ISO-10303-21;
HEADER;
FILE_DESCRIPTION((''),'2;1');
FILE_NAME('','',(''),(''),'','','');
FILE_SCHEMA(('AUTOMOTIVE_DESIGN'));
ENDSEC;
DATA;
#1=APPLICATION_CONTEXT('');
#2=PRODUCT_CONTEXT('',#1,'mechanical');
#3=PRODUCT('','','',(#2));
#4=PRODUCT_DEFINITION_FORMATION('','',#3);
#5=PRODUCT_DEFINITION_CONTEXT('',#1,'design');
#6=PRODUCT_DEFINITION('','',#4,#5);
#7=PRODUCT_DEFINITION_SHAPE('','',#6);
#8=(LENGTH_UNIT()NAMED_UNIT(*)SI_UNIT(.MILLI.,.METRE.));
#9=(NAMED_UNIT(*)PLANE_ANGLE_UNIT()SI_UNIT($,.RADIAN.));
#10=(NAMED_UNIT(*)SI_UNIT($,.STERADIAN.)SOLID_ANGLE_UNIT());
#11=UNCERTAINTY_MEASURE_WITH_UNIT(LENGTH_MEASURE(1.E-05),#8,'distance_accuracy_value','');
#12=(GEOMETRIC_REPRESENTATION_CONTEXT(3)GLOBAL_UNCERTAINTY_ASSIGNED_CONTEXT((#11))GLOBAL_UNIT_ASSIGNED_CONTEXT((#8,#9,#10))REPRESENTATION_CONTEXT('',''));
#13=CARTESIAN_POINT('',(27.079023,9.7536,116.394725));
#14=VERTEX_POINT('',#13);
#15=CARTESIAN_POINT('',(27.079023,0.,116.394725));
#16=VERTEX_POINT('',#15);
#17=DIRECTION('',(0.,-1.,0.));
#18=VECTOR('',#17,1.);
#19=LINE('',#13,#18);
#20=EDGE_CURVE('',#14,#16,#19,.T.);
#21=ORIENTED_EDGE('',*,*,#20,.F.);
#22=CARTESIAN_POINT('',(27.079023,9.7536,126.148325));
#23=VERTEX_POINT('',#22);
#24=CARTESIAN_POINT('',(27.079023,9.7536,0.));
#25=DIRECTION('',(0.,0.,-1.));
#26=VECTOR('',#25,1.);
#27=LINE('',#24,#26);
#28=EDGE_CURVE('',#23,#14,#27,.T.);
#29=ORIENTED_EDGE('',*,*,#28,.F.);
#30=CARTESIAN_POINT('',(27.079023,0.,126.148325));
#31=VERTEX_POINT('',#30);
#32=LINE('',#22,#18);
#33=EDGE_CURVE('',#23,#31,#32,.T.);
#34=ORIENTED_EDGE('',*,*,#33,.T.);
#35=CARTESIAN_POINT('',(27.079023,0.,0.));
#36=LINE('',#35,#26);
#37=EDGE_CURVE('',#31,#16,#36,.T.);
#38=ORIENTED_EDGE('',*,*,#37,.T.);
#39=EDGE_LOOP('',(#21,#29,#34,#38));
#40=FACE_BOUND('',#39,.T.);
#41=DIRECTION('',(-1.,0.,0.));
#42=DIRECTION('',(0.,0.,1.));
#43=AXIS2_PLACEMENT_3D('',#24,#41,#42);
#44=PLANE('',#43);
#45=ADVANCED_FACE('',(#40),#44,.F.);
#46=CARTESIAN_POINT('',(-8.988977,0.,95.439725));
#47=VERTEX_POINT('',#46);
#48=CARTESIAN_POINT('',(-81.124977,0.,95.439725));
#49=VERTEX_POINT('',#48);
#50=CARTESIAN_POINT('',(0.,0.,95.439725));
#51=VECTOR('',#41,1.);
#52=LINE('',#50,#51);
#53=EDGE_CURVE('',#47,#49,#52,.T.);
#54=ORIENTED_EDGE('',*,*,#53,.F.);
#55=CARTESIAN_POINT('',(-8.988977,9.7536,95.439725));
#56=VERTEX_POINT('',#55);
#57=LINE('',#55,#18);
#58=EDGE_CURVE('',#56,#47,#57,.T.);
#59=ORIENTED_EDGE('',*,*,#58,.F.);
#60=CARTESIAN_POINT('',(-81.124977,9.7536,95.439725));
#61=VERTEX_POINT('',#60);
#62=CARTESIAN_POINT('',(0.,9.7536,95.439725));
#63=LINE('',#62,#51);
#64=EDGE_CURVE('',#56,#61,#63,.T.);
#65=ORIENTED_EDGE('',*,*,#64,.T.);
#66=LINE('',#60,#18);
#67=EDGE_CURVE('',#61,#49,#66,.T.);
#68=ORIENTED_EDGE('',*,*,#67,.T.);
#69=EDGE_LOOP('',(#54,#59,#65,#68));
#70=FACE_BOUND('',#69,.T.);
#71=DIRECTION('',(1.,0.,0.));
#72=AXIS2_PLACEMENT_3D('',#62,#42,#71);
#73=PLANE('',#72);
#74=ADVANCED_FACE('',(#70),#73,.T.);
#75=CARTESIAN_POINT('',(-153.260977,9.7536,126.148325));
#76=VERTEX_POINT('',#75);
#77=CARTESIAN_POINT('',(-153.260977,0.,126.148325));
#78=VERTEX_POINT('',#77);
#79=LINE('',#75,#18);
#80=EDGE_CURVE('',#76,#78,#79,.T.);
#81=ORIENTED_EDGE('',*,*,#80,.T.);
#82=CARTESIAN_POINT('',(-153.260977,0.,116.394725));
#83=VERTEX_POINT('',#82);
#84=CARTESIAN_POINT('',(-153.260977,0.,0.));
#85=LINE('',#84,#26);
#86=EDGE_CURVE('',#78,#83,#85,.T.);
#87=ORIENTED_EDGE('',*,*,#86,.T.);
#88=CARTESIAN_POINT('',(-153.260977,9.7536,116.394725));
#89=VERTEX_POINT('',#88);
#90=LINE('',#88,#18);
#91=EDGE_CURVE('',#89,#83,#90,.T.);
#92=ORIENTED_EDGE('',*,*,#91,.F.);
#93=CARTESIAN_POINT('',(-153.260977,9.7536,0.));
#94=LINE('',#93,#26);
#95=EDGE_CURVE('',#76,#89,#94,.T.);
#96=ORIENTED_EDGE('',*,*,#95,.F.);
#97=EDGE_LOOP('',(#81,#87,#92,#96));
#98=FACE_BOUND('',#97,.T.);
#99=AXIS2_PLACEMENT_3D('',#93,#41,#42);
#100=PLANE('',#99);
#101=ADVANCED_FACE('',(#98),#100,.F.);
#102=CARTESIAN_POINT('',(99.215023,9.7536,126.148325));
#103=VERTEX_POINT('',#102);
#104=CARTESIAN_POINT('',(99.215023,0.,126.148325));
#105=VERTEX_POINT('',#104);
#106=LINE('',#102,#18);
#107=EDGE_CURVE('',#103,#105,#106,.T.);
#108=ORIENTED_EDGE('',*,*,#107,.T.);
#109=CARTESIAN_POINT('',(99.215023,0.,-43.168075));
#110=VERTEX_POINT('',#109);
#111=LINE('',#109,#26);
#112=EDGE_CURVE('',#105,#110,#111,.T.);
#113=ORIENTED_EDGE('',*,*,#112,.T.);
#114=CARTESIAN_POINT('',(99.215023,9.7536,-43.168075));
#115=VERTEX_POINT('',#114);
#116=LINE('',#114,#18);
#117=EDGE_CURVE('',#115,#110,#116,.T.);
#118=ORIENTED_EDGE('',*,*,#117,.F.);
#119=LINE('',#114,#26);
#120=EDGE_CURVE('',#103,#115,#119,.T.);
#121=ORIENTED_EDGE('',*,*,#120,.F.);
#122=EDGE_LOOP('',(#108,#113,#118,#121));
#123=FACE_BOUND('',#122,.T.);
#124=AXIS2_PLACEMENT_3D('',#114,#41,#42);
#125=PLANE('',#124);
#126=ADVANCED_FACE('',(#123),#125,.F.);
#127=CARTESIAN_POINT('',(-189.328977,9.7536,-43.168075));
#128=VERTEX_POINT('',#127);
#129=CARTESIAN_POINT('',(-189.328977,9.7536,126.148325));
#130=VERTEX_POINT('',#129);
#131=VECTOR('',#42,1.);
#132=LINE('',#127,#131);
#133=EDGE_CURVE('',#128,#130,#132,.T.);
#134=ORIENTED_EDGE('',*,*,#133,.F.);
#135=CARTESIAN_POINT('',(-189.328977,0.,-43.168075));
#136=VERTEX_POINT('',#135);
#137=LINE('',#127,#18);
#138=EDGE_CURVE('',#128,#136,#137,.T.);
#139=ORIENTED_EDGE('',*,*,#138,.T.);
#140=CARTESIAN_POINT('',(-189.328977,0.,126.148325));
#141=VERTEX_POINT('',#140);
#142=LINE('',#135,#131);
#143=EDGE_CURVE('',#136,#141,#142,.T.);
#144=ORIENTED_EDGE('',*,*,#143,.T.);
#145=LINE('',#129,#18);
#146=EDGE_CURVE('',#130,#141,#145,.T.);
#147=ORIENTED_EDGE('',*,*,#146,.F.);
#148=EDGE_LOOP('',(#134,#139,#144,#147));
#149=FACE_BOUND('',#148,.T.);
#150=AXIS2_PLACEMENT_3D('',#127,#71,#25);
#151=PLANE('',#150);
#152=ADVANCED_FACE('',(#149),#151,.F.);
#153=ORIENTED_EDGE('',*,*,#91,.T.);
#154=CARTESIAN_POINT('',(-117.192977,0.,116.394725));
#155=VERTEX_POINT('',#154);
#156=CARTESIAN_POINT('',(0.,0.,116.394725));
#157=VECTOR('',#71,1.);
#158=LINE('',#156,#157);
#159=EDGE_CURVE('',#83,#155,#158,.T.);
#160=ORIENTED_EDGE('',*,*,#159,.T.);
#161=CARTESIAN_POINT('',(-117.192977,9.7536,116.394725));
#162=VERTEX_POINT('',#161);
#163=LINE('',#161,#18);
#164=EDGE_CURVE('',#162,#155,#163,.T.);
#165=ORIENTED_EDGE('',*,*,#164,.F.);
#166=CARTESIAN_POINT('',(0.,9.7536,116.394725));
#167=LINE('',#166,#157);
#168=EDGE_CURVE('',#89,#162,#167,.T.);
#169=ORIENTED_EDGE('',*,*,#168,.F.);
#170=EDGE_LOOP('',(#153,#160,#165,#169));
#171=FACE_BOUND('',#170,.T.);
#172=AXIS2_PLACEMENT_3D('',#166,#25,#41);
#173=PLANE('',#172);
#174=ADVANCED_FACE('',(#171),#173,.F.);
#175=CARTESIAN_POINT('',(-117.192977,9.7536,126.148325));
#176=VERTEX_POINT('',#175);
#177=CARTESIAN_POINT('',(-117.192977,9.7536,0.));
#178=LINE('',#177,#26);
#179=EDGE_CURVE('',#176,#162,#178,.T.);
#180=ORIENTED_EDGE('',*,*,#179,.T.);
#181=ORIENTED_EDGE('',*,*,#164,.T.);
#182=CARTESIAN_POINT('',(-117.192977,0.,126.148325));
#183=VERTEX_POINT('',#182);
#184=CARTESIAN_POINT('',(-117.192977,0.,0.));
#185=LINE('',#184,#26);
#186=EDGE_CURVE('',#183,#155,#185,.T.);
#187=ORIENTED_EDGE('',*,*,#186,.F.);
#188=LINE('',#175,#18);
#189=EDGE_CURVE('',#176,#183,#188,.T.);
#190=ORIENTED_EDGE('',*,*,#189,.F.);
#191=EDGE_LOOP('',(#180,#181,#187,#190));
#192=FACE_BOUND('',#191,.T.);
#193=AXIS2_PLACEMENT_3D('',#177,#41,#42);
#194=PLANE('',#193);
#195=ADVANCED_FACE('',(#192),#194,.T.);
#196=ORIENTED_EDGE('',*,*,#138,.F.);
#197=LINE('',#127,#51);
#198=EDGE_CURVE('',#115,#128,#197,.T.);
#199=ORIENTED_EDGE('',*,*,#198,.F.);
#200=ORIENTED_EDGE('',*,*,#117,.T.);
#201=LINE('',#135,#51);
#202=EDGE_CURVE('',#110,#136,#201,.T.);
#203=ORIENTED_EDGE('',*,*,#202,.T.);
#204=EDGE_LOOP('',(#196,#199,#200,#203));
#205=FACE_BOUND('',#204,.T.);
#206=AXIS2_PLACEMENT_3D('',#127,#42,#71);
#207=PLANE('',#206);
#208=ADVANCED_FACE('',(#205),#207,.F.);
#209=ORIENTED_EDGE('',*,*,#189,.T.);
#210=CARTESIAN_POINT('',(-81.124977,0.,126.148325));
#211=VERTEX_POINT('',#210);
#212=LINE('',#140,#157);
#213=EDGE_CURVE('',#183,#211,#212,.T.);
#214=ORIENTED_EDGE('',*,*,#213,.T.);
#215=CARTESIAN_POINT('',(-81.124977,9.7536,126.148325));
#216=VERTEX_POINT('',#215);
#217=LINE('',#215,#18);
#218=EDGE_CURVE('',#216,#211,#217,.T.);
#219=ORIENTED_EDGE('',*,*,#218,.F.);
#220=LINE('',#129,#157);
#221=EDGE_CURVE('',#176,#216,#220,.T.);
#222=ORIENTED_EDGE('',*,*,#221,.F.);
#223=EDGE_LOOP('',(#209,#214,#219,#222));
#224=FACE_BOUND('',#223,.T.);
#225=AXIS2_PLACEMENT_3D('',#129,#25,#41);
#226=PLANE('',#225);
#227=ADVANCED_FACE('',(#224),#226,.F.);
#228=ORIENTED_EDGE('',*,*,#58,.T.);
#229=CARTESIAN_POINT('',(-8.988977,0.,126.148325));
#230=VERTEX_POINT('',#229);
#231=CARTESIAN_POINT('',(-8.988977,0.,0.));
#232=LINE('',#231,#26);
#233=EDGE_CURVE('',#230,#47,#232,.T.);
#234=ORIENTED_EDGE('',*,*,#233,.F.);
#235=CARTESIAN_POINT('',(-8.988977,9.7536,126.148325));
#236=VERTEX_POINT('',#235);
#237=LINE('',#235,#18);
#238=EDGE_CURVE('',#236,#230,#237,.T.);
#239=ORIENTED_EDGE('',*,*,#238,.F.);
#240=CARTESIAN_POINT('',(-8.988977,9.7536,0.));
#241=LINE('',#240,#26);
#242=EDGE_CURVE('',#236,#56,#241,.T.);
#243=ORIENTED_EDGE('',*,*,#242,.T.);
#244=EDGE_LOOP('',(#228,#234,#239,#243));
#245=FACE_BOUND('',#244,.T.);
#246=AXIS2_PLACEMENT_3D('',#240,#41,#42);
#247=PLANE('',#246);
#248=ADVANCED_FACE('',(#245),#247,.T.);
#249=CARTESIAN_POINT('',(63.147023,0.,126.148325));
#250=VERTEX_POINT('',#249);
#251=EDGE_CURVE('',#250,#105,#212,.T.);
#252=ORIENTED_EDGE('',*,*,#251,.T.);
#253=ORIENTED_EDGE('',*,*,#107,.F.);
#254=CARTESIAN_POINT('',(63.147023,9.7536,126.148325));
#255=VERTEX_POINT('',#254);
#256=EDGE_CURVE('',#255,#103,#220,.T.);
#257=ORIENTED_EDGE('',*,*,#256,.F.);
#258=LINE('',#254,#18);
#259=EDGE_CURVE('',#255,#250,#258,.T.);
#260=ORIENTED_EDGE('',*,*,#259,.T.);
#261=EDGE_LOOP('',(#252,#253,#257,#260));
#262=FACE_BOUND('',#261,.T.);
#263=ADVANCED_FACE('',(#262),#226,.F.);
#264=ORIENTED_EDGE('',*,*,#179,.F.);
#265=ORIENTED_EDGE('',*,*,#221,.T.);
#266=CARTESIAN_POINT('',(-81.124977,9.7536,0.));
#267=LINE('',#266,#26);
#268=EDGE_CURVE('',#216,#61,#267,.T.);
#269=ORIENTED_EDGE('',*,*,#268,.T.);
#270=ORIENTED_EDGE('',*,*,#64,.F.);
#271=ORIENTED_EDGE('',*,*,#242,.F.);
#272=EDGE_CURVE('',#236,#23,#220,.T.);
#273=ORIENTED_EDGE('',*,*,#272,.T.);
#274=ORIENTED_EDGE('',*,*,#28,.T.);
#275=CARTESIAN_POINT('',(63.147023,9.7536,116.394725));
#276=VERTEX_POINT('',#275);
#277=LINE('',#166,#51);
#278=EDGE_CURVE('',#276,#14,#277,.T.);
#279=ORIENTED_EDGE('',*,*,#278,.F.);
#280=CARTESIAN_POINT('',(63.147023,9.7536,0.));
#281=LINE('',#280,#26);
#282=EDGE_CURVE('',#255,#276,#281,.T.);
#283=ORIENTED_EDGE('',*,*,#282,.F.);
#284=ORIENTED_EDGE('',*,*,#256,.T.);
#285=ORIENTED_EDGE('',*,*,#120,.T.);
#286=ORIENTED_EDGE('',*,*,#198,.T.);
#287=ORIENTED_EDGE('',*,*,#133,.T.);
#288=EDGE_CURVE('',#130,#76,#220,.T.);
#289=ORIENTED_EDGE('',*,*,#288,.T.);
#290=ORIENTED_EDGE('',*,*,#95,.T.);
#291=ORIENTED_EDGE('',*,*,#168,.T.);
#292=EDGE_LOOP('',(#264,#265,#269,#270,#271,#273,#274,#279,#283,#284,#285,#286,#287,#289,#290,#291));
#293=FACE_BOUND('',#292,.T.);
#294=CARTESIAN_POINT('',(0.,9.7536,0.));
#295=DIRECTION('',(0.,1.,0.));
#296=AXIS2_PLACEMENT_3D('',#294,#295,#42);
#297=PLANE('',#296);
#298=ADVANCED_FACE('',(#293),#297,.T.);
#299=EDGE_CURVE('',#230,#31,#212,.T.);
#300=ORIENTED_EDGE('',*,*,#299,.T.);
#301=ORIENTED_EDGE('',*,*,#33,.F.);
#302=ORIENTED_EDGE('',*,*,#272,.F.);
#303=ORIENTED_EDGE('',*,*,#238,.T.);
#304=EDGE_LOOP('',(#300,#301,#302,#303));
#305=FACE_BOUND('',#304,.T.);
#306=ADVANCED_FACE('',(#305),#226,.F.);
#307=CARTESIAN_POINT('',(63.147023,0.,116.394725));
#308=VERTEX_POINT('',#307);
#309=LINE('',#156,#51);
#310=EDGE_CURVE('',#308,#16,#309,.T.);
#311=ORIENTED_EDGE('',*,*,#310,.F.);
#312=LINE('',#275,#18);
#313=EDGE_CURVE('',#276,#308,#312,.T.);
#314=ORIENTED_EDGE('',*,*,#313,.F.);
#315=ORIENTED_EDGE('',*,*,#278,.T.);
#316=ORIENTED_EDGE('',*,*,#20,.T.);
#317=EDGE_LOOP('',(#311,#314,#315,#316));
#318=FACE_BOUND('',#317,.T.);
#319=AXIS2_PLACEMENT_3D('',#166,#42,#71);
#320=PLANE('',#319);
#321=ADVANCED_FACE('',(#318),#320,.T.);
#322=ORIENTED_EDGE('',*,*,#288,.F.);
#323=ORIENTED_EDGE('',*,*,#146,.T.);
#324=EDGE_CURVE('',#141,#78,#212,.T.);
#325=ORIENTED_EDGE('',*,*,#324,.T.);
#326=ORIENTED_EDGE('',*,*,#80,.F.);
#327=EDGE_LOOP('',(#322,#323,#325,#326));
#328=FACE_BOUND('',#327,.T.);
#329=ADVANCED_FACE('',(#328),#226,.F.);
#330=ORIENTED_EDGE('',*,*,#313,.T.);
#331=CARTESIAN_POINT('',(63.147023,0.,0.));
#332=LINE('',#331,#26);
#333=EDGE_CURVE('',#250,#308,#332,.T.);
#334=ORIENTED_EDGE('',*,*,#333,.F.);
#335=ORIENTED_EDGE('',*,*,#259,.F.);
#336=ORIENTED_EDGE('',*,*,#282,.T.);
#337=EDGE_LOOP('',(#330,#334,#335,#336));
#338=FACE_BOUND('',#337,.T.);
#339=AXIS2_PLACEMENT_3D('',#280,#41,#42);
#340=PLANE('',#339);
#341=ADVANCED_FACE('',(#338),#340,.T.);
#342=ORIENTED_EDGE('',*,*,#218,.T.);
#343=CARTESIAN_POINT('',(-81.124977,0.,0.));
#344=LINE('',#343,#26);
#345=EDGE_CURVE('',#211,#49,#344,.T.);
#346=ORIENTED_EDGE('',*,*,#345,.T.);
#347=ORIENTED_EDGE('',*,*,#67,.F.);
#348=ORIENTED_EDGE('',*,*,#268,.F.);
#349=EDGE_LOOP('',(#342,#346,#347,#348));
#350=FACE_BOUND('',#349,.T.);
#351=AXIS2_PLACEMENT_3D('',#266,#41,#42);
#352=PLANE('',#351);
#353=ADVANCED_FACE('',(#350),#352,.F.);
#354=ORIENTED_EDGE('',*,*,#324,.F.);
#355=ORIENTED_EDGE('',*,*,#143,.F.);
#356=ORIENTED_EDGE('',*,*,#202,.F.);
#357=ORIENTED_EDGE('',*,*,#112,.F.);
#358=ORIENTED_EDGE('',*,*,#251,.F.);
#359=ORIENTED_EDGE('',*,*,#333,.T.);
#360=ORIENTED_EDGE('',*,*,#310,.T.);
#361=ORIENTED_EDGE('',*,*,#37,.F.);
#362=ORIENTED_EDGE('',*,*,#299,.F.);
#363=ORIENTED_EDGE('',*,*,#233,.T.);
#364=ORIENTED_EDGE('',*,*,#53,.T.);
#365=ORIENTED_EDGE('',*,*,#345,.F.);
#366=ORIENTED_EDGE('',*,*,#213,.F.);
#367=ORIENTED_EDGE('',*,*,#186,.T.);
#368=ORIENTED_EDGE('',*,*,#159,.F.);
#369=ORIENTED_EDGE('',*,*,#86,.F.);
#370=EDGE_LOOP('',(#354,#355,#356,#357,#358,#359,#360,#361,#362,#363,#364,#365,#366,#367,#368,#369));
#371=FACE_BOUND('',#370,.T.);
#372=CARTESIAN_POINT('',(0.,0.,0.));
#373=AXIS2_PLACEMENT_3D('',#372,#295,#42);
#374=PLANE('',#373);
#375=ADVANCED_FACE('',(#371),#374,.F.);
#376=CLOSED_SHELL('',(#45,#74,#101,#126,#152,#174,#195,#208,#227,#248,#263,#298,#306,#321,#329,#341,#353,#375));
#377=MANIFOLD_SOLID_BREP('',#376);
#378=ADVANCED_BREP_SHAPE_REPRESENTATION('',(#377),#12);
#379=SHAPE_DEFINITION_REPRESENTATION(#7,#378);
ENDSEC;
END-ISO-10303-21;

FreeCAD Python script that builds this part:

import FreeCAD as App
import Part
import Sketcher
from FreeCAD import Vector
Q = App.Units.Quantity

doc = App.newDocument("Part")
body = doc.addObject("PartDesign::Body", "Body")

# Sketch on XZ plane
sketch1 = body.newObject("Sketcher::SketchObject", "Sketch")
sketch1.AttachmentSupport = (doc.getObject("XZ_Plane"), [""])
sketch1.MapMode = "FlatFace"
sketch1.addGeometry(Part.LineSegment(Vector(-189, -43, 0), Vector(-189, 126, 0)), False)
sketch1.addGeometry(Part.LineSegment(Vector(-189, 126, 0), Vector(99, 126, 0)), False)
sketch1.addGeometry(Part.LineSegment(Vector(99, 126, 0), Vector(99, -43, 0)), False)
sketch1.addGeometry(Part.LineSegment(Vector(99, -43, 0), Vector(-189, -43, 0)), False)
sketch1.addConstraint(Sketcher.Constraint("Coincident", 0, 2, 1, 1))
sketch1.addConstraint(Sketcher.Constraint("Coincident", 1, 2, 2, 1))
sketch1.addConstraint(Sketcher.Constraint("Coincident", 2, 2, 3, 1))
sketch1.addConstraint(Sketcher.Constraint("Coincident", 3, 2, 0, 1))
sketch1.addConstraint(Sketcher.Constraint("Vertical", 0))
sketch1.addConstraint(Sketcher.Constraint("Horizontal", 1))
sketch1.addConstraint(Sketcher.Constraint("Vertical", 2))
sketch1.addConstraint(Sketcher.Constraint("Horizontal", 3))
sketch1.addConstraint(Sketcher.Constraint("DistanceX", 1, 1, 1, 2, Q("11.36 in")))
sketch1.addConstraint(Sketcher.Constraint("DistanceY", 0, 1, 0, 2, Q("6.666 in")))
sketch1.addConstraint(Sketcher.Constraint("DistanceX", 0, 2, -1, 1, Q("189.328977 mm")))
sketch1.addConstraint(Sketcher.Constraint("DistanceY", -1, 1, 0, 2, Q("126.148325 mm")))
pad1 = body.newObject("PartDesign::Pad", "Pad")
pad1.Profile = sketch1
pad1.Length = Q("0.384 in")
pad1.Reversed = True

# Sketch on XZ plane
sketch2 = body.newObject("Sketcher::SketchObject", "Sketch001")
sketch2.AttachmentSupport = (doc.getObject("XZ_Plane"), [""])
sketch2.MapMode = "FlatFace"
sketch2.addGeometry(Part.LineSegment(Vector(-153, 126, 0), Vector(-153, 116, 0)), False)
sketch2.addGeometry(Part.LineSegment(Vector(-153, 116, 0), Vector(-117, 116, 0)), False)
sketch2.addGeometry(Part.LineSegment(Vector(-117, 116, 0), Vector(-117, 126, 0)), False)
sketch2.addGeometry(Part.LineSegment(Vector(-117, 126, 0), Vector(-153, 126, 0)), False)
sketch2.addGeometry(Part.LineSegment(Vector(-81, 126, 0), Vector(-81, 95, 0)), False)
sketch2.addGeometry(Part.LineSegment(Vector(-81, 95, 0), Vector(-9, 95, 0)), False)
sketch2.addGeometry(Part.LineSegment(Vector(-9, 95, 0), Vector(-9, 126, 0)), False)
sketch2.addGeometry(Part.LineSegment(Vector(-9, 126, 0), Vector(-81, 126, 0)), False)
sketch2.addGeometry(Part.LineSegment(Vector(27, 126, 0), Vector(27, 116, 0)), False)
sketch2.addGeometry(Part.LineSegment(Vector(27, 116, 0), Vector(63, 116, 0)), False)
sketch2.addGeometry(Part.LineSegment(Vector(63, 116, 0), Vector(63, 126, 0)), False)
sketch2.addGeometry(Part.LineSegment(Vector(63, 126, 0), Vector(27, 126, 0)), False)
sketch2.addConstraint(Sketcher.Constraint("Coincident", 0, 2, 1, 1))
sketch2.addConstraint(Sketcher.Constraint("Coincident", 1, 2, 2, 1))
sketch2.addConstraint(Sketcher.Constraint("Coincident", 2, 2, 3, 1))
sketch2.addConstraint(Sketcher.Constraint("Coincident", 3, 2, 0, 1))
sketch2.addConstraint(Sketcher.Constraint("Coincident", 4, 2, 5, 1))
sketch2.addConstraint(Sketcher.Constraint("Coincident", 5, 2, 6, 1))
sketch2.addConstraint(Sketcher.Constraint("Coincident", 6, 2, 7, 1))
sketch2.addConstraint(Sketcher.Constraint("Coincident", 7, 2, 4, 1))
sketch2.addConstraint(Sketcher.Constraint("Coincident", 8, 2, 9, 1))
sketch2.addConstraint(Sketcher.Constraint("Coincident", 9, 2, 10, 1))
sketch2.addConstraint(Sketcher.Constraint("Coincident", 10, 2, 11, 1))
sketch2.addConstraint(Sketcher.Constraint("Coincident", 11, 2, 8, 1))
sketch2.addConstraint(Sketcher.Constraint("Vertical", 0))
sketch2.addConstraint(Sketcher.Constraint("Horizontal", 1))
sketch2.addConstraint(Sketcher.Constraint("Vertical", 2))
sketch2.addConstraint(Sketcher.Constraint("Horizontal", 3))
sketch2.addConstraint(Sketcher.Constraint("Vertical", 4))
sketch2.addConstraint(Sketcher.Constraint("Horizontal", 5))
sketch2.addConstraint(Sketcher.Constraint("Vertical", 6))
sketch2.addConstraint(Sketcher.Constraint("Horizontal", 7))
sketch2.addConstraint(Sketcher.Constraint("Vertical", 8))
sketch2.addConstraint(Sketcher.Constraint("Horizontal", 9))
sketch2.addConstraint(Sketcher.Constraint("Vertical", 10))
sketch2.addConstraint(Sketcher.Constraint("Horizontal", 11))
sketch2.addConstraint(Sketcher.Constraint("Horizontal", 3, 2, 6, 2))
sketch2.addConstraint(Sketcher.Constraint("Horizontal", 1, 2, 8, 2))
sketch2.addConstraint(Sketcher.Constraint("Horizontal", 7, 2, 10, 2))
sketch2.addConstraint(Sketcher.Constraint("Equal", 3, 9))
sketch2.addConstraint(Sketcher.Constraint("DistanceX", 1, 1, 1, 2, Q("1.42 in")))
sketch2.addConstraint(Sketcher.Constraint("DistanceX", 5, 1, 5, 2, Q("2.84 in")))
sketch2.addConstraint(Sketcher.Constraint("DistanceY", 0, 2, 0, 1, Q("0.384 in")))
sketch2.addConstraint(Sketcher.Constraint("DistanceY", 4, 2, 4, 1, Q("1.209 in")))
sketch2.addConstraint(Sketcher.Constraint("DistanceX", 1, 2, 4, 2, Q("1.42 in")))
sketch2.addConstraint(Sketcher.Constraint("DistanceX", 6, 2, 8, 2, Q("1.42 in")))
sketch2.addConstraint(Sketcher.Constraint("DistanceX", 0, 2, -1, 1, Q("153.260977 mm")))
sketch2.addConstraint(Sketcher.Constraint("DistanceY", -1, 1, 0, 2, Q("116.394725 mm")))
pocket1 = body.newObject("PartDesign::Pocket", "Pocket")
pocket1.Profile = sketch2
pocket1.Type = "ThroughAll"

doc.recompute()
